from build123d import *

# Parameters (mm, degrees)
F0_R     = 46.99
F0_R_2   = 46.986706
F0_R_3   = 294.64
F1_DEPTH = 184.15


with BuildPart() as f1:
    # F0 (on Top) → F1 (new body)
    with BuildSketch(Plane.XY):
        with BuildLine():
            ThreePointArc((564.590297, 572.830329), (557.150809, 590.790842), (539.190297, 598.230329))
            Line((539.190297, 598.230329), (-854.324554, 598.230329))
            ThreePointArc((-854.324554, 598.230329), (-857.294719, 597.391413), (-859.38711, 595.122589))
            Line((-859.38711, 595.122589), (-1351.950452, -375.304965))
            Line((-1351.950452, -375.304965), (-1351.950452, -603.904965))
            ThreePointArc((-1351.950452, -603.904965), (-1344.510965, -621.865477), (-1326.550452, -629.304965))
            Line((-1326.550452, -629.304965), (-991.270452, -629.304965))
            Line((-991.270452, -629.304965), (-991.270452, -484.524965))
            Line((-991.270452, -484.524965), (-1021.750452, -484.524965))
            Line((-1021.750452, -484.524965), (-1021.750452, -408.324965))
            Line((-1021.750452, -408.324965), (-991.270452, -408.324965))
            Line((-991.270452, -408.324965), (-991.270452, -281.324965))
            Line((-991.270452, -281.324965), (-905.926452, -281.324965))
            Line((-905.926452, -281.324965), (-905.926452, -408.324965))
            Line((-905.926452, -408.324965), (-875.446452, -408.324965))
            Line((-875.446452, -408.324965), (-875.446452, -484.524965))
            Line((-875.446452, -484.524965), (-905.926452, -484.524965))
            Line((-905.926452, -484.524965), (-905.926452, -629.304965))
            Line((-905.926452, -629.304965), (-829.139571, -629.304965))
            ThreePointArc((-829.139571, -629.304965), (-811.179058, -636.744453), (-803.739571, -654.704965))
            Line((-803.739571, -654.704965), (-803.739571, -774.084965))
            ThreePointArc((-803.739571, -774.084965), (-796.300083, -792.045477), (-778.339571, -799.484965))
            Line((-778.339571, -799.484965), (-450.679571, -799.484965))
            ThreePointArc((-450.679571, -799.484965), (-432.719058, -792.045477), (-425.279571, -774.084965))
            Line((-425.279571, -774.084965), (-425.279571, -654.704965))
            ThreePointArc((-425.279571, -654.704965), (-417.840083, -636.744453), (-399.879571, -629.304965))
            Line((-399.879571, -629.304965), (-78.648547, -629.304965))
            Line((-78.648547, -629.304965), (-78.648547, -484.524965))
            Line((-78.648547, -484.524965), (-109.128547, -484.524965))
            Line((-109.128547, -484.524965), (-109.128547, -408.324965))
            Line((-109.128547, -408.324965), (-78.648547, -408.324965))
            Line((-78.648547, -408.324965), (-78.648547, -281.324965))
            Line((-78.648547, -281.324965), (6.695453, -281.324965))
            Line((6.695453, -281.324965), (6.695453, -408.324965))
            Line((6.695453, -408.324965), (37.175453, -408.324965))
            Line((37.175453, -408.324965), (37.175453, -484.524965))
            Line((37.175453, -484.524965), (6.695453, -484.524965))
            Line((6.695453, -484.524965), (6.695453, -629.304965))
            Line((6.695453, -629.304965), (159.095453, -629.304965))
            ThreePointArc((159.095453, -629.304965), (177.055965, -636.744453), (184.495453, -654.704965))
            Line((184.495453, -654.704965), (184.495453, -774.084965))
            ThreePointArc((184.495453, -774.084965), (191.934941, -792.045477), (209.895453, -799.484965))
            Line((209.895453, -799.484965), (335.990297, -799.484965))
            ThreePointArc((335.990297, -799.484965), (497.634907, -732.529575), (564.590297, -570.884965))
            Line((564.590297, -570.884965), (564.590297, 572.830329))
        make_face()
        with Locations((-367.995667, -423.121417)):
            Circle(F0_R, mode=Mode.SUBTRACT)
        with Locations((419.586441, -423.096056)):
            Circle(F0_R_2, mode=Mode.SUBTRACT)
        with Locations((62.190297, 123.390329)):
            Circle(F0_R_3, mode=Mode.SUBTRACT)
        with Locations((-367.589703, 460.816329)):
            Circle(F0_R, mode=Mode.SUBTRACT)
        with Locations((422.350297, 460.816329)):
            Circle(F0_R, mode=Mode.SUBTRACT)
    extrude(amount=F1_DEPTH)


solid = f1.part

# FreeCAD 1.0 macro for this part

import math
import FreeCAD as App
import Part
import Sketcher
Q = App.Units.Quantity

doc = App.newDocument("Part")
body = doc.addObject("PartDesign::Body", "Body")

sketch1 = body.newObject("Sketcher::SketchObject", "Sketch")
sketch1.AttachmentSupport = (doc.getObject("XY_Plane"), [""])
sketch1.MapMode = "FlatFace"
sketch1.addGeometry([
    Part.ArcOfCircle(Part.Circle(App.Vector(539, 573, 0), App.Vector(0, 0, 1), 25), math.radians(0), math.radians(90)),
    Part.LineSegment(App.Vector(539, 598, 0), App.Vector(-854, 598, 0)),
    Part.ArcOfCircle(Part.Circle(App.Vector(-854, 593, 0), App.Vector(0, 0, 1), 6), math.radians(90), math.radians(153)),
    Part.LineSegment(App.Vector(-859, 595, 0), App.Vector(-1352, -375, 0)),
    Part.LineSegment(App.Vector(-1352, -375, 0), App.Vector(-1352, -604, 0)),
    Part.ArcOfCircle(Part.Circle(App.Vector(-1327, -604, 0), App.Vector(0, 0, 1), 25), math.radians(180), math.radians(270)),
    Part.LineSegment(App.Vector(-1327, -629, 0), App.Vector(-991, -629, 0)),
    Part.LineSegment(App.Vector(-991, -629, 0), App.Vector(-991, -485, 0)),
    Part.LineSegment(App.Vector(-991, -485, 0), App.Vector(-1022, -485, 0)),
    Part.LineSegment(App.Vector(-1022, -485, 0), App.Vector(-1022, -408, 0)),
    Part.LineSegment(App.Vector(-1022, -408, 0), App.Vector(-991, -408, 0)),
    Part.LineSegment(App.Vector(-991, -408, 0), App.Vector(-991, -281, 0)),
    Part.LineSegment(App.Vector(-991, -281, 0), App.Vector(-906, -281, 0)),
    Part.LineSegment(App.Vector(-906, -281, 0), App.Vector(-906, -408, 0)),
    Part.LineSegment(App.Vector(-906, -408, 0), App.Vector(-875, -408, 0)),
    Part.LineSegment(App.Vector(-875, -408, 0), App.Vector(-875, -485, 0)),
    Part.LineSegment(App.Vector(-875, -485, 0), App.Vector(-906, -485, 0)),
    Part.LineSegment(App.Vector(-906, -485, 0), App.Vector(-906, -629, 0)),
    Part.LineSegment(App.Vector(-906, -629, 0), App.Vector(-829, -629, 0)),
    Part.ArcOfCircle(Part.Circle(App.Vector(-829, -655, 0), App.Vector(0, 0, 1), 25), math.radians(0), math.radians(90)),
    Part.LineSegment(App.Vector(-804, -655, 0), App.Vector(-804, -774, 0)),
    Part.ArcOfCircle(Part.Circle(App.Vector(-778, -774, 0), App.Vector(0, 0, 1), 25), math.radians(-180), math.radians(-90)),
    Part.LineSegment(App.Vector(-778, -799, 0), App.Vector(-451, -799, 0)),
    Part.ArcOfCircle(Part.Circle(App.Vector(-451, -774, 0), App.Vector(0, 0, 1), 25), math.radians(-90), math.radians(0)),
    Part.LineSegment(App.Vector(-425, -774, 0), App.Vector(-425, -655, 0)),
    Part.ArcOfCircle(Part.Circle(App.Vector(-400, -655, 0), App.Vector(0, 0, 1), 25), math.radians(90), math.radians(180)),
    Part.LineSegment(App.Vector(-400, -629, 0), App.Vector(-79, -629, 0)),
    Part.LineSegment(App.Vector(-79, -629, 0), App.Vector(-79, -485, 0)),
    Part.LineSegment(App.Vector(-79, -485, 0), App.Vector(-109, -485, 0)),
    Part.LineSegment(App.Vector(-109, -485, 0), App.Vector(-109, -408, 0)),
    Part.LineSegment(App.Vector(-109, -408, 0), App.Vector(-79, -408, 0)),
    Part.LineSegment(App.Vector(-79, -408, 0), App.Vector(-79, -281, 0)),
    Part.LineSegment(App.Vector(-79, -281, 0), App.Vector(7, -281, 0)),
    Part.LineSegment(App.Vector(7, -281, 0), App.Vector(7, -408, 0)),
    Part.LineSegment(App.Vector(7, -408, 0), App.Vector(37, -408, 0)),
    Part.LineSegment(App.Vector(37, -408, 0), App.Vector(37, -485, 0)),
    Part.LineSegment(App.Vector(37, -485, 0), App.Vector(7, -485, 0)),
    Part.LineSegment(App.Vector(7, -485, 0), App.Vector(7, -629, 0)),
    Part.LineSegment(App.Vector(7, -629, 0), App.Vector(159, -629, 0)),
    Part.ArcOfCircle(Part.Circle(App.Vector(159, -655, 0), App.Vector(0, 0, 1), 25), math.radians(0), math.radians(90)),
    Part.LineSegment(App.Vector(184, -655, 0), App.Vector(184, -774, 0)),
    Part.ArcOfCircle(Part.Circle(App.Vector(210, -774, 0), App.Vector(0, 0, 1), 25), math.radians(-180), math.radians(-90)),
    Part.LineSegment(App.Vector(210, -799, 0), App.Vector(336, -799, 0)),
    Part.ArcOfCircle(Part.Circle(App.Vector(336, -571, 0), App.Vector(0, 0, 1), 229), math.radians(-90), math.radians(0)),
    Part.LineSegment(App.Vector(565, -571, 0), App.Vector(565, 573, 0)),
    Part.Circle(App.Vector(-368, -423, 0), App.Vector(0, 0, 1), 47),
    Part.Circle(App.Vector(420, -423, 0), App.Vector(0, 0, 1), 47),
    Part.Circle(App.Vector(-368, 461, 0), App.Vector(0, 0, 1), 47),
    Part.Circle(App.Vector(62, 123, 0), App.Vector(0, 0, 1), 295),
    Part.Circle(App.Vector(422, 461, 0), App.Vector(0, 0, 1), 47),
], False)
sketch1.addConstraint([
    Sketcher.Constraint("Tangent", 0, 2, 1, 1),
    Sketcher.Constraint("Tangent", 1, 2, 2, 1),
    Sketcher.Constraint("Tangent", 2, 2, 3, 1),
    Sketcher.Constraint("Coincident", 3, 2, 4, 1),
    Sketcher.Constraint("Tangent", 4, 2, 5, 1),
    Sketcher.Constraint("Tangent", 5, 2, 6, 1),
    Sketcher.Constraint("Coincident", 6, 2, 7, 1),
    Sketcher.Constraint("Coincident", 7, 2, 8, 1),
    Sketcher.Constraint("Coincident", 8, 2, 9, 1),
    Sketcher.Constraint("Coincident", 9, 2, 10, 1),
    Sketcher.Constraint("Coincident", 10, 2, 11, 1),
    Sketcher.Constraint("Coincident", 11, 2, 12, 1),
    Sketcher.Constraint("Coincident", 12, 2, 13, 1),
    Sketcher.Constraint("Coincident", 13, 2, 14, 1),
    Sketcher.Constraint("Coincident", 14, 2, 15, 1),
    Sketcher.Constraint("Coincident", 15, 2, 16, 1),
    Sketcher.Constraint("Coincident", 16, 2, 17, 1),
    Sketcher.Constraint("Coincident", 17, 2, 18, 1),
    Sketcher.Constraint("Tangent", 18, 2, 19, 2),
    Sketcher.Constraint("Tangent", 19, 1, 20, 1),
    Sketcher.Constraint("Tangent", 20, 2, 21, 1),
    Sketcher.Constraint("Tangent", 21, 2, 22, 1),
    Sketcher.Constraint("Tangent", 22, 2, 23, 1),
    Sketcher.Constraint("Tangent", 23, 2, 24, 1),
    Sketcher.Constraint("Tangent", 24, 2, 25, 2),
    Sketcher.Constraint("Tangent", 25, 1, 26, 1),
    Sketcher.Constraint("Coincident", 26, 2, 27, 1),
    Sketcher.Constraint("Coincident", 27, 2, 28, 1),
    Sketcher.Constraint("Coincident", 28, 2, 29, 1),
    Sketcher.Constraint("Coincident", 29, 2, 30, 1),
    Sketcher.Constraint("Coincident", 30, 2, 31, 1),
    Sketcher.Constraint("Coincident", 31, 2, 32, 1),
    Sketcher.Constraint("Coincident", 32, 2, 33, 1),
    Sketcher.Constraint("Coincident", 33, 2, 34, 1),
    Sketcher.Constraint("Coincident", 34, 2, 35, 1),
    Sketcher.Constraint("Coincident", 35, 2, 36, 1),
    Sketcher.Constraint("Coincident", 36, 2, 37, 1),
    Sketcher.Constraint("Coincident", 37, 2, 38, 1),
    Sketcher.Constraint("Tangent", 38, 2, 39, 2),
    Sketcher.Constraint("Tangent", 39, 1, 40, 1),
    Sketcher.Constraint("Tangent", 40, 2, 41, 1),
    Sketcher.Constraint("Tangent", 41, 2, 42, 1),
    Sketcher.Constraint("Tangent", 42, 2, 43, 1),
    Sketcher.Constraint("Tangent", 43, 2, 44, 1),
    Sketcher.Constraint("Tangent", 44, 2, 0, 1),
    Sketcher.Constraint("Horizontal", 1),
    Sketcher.Constraint("Vertical", 4),
    Sketcher.Constraint("Horizontal", 6),
    Sketcher.Constraint("Vertical", 7),
    Sketcher.Constraint("Horizontal", 8),
    Sketcher.Constraint("Vertical", 9),
    Sketcher.Constraint("Horizontal", 10),
    Sketcher.Constraint("Vertical", 11),
    Sketcher.Constraint("Horizontal", 12),
    Sketcher.Constraint("Vertical", 13),
    Sketcher.Constraint("Horizontal", 14),
    Sketcher.Constraint("Vertical", 15),
    Sketcher.Constraint("Horizontal", 16),
    Sketcher.Constraint("Vertical", 17),
    Sketcher.Constraint("Horizontal", 18),
    Sketcher.Constraint("Vertical", 20),
    Sketcher.Constraint("Horizontal", 22),
    Sketcher.Constraint("Vertical", 24),
    Sketcher.Constraint("Horizontal", 26),
    Sketcher.Constraint("Vertical", 27),
    Sketcher.Constraint("Horizontal", 28),
    Sketcher.Constraint("Vertical", 29),
    Sketcher.Constraint("Horizontal", 30),
    Sketcher.Constraint("Vertical", 31),
    Sketcher.Constraint("Horizontal", 32),
    Sketcher.Constraint("Vertical", 33),
    Sketcher.Constraint("Horizontal", 34),
    Sketcher.Constraint("Vertical", 35),
    Sketcher.Constraint("Horizontal", 36),
    Sketcher.Constraint("Vertical", 37),
    Sketcher.Constraint("Horizontal", 38),
    Sketcher.Constraint("Vertical", 40),
    Sketcher.Constraint("Horizontal", 42),
    Sketcher.Constraint("Vertical", 44),
    Sketcher.Constraint("Equal", 0, 5),
    Sketcher.Constraint("Equal", 5, 19),
    Sketcher.Constraint("Equal", 19, 21),
    Sketcher.Constraint("Equal", 21, 23),
    Sketcher.Constraint("Equal", 23, 25),
    Sketcher.Constraint("Equal", 25, 39),
    Sketcher.Constraint("Equal", 39, 41),
    Sketcher.Constraint("Equal", 45, 47),
    Sketcher.Constraint("Equal", 47, 49),
    Sketcher.Constraint("Horizontal", 19, 3, 25, 3),
    Sketcher.Constraint("Horizontal", 25, 3, 39, 3),
    Sketcher.Constraint("Horizontal", 23, 3, 41, 3),
    Sketcher.Constraint("Horizontal", 47, 3, 49, 3),
    Sketcher.Constraint("Horizontal", 10, 2, 13, 2),
    Sketcher.Constraint("Horizontal", 8, 2, 15, 2),
    Sketcher.Constraint("Horizontal", 6, 2, 17, 2),
    Sketcher.Constraint("Horizontal", 16, 2, 27, 2),
    Sketcher.Constraint("Horizontal", 14, 2, 29, 2),
    Sketcher.Constraint("Horizontal", 12, 2, 31, 2),
    Sketcher.Constraint("Horizontal", 30, 2, 33, 2),
    Sketcher.Constraint("Horizontal", 28, 2, 35, 2),
    Sketcher.Constraint("Vertical", 7, 2, 10, 2),
    Sketcher.Constraint("Vertical", 13, 2, 16, 2),
    Sketcher.Constraint("Vertical", 27, 2, 30, 2),
    Sketcher.Constraint("Vertical", 33, 2, 36, 2),
    Sketcher.Constraint("Equal", 10, 14),
    Sketcher.Constraint("Equal", 16, 28),
    Sketcher.Constraint("Equal", 12, 32),
    Sketcher.Constraint("Equal", 30, 34),
    Sketcher.Constraint("Radius", 0, Q("1 in")),
    Sketcher.Constraint("Radius", 43, Q("9 in")),
    Sketcher.Constraint("Diameter", 45, Q("3.7 in")),
    Sketcher.Constraint("Diameter", 48, Q("23.2 in")),
    Sketcher.Constraint("DistanceX", 38, 1, 38, 2, Q("6 in")),
    Sketcher.Constraint("DistanceY", 4, 2, 4, 1, Q("9 in")),
    Sketcher.Constraint("DistanceY", 9, 1, 9, 2, Q("3 in")),
    Sketcher.Constraint("DistanceY", 11, 1, 11, 2, Q("5 in")),
    Sketcher.Constraint("DistanceX", 6, 1, 6, 2, Q("13.2 in")),
    Sketcher.Constraint("DistanceX", 8, 2, 8, 1, Q("1.2 in")),
    Sketcher.Constraint("DistanceX", 22, 1, 22, 2, Q("12.9 in")),
    Sketcher.Constraint("DistanceY", 7, 1, 7, 2, Q("5.7 in")),
    Sketcher.Constraint("DistanceY", 20, 2, 20, 1, Q("4.7 in")),
    Sketcher.Constraint("DistanceX", 12, 1, 12, 2, Q("3.36 in")),
    Sketcher.Constraint("DistanceX", 47, 3, 0, 3, Q("35.7 in")),
    Sketcher.Constraint("DistanceX", 49, 3, 0, 3, Q("4.6 in")),
    Sketcher.Constraint("DistanceY", 47, 3, 0, 3, Q("4.41 in")),
    Sketcher.Constraint("Diameter", 46, Q("93.973412 mm")),
    Sketcher.Constraint("Radius", 2, Q("5.677359 mm")),
    Sketcher.Constraint("DistanceY", 46, 3, 47, 3, Q("34.7997002 in")),
    Sketcher.Constraint("DistanceX", 1, 2, 1, 1, Q("1393.514851 mm")),
    Sketcher.Constraint("DistanceX", 18, 1, 18, 2, Q("76.786881 mm")),
    Sketcher.Constraint("DistanceX", 47, 3, 48, 3, Q("429.78 mm")),
    Sketcher.Constraint("DistanceY", 48, 3, 47, 3, Q("337.426 mm")),
    Sketcher.Constraint("Distance", 3, Q("1088.277668 mm")),
    Sketcher.Constraint("DistanceX", 26, 1, 26, 2, Q("321.231024 mm")),
    Sketcher.Constraint("DistanceX", 42, 1, 42, 2, Q("126.094844 mm")),
    Sketcher.Constraint("DistanceY", -1, 1, 0, 3, Q("572.83033 mm")),
    Sketcher.Constraint("DistanceX", 19, 3, -1, 1, Q("829.13957 mm")),
    Sketcher.Constraint("DistanceX", -1, 1, 46, 3, Q("419.586441 mm")),
    Sketcher.Constraint("DistanceY", 25, 3, 45, 3, Q("231.583549 mm")),
    Sketcher.Constraint("DistanceX", 45, 3, 39, 3, Q("527.091119 mm")),
])
pad1 = body.newObject("PartDesign::Pad", "Pad")
pad1.Profile = sketch1
pad1.Length = Q("7.25 in")

doc.recompute()
